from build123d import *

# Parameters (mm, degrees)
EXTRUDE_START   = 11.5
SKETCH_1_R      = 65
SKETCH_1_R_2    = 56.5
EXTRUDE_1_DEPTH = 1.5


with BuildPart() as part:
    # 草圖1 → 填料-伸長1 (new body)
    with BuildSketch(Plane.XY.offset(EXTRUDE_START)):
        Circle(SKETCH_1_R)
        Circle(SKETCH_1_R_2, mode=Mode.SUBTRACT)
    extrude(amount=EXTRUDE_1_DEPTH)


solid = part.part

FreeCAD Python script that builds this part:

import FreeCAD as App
import Part
import Sketcher

doc = App.newDocument("Part")
body = doc.addObject("PartDesign::Body", "Body")

sketch1 = body.newObject("Sketcher::SketchObject", "Sketch")
sketch1.AttachmentSupport = (doc.getObject("XY_Plane"), [""])
sketch1.MapMode = "FlatFace"
sketch1.AttachmentOffset = App.Placement(App.Vector(0, 0, 11.5), App.Rotation())
sketch1.addGeometry([
    Part.Circle(App.Vector(0, 0, 0), App.Vector(0, 0, 1), 65),
    Part.Circle(App.Vector(0, 0, 0), App.Vector(0, 0, 1), 56.5),
], False)
sketch1.addConstraint([
    Sketcher.Constraint("Coincident", 0, 3, -1, 1),
    Sketcher.Constraint("Coincident", 1, 3, -1, 1),
    Sketcher.Constraint("Diameter", 0, 130.0),
    Sketcher.Constraint("Diameter", 1, 113.0),
])
pad1 = body.newObject("PartDesign::Pad", "Pad")
pad1.Profile = sketch1
pad1.Length = 1.5

doc.recompute()
